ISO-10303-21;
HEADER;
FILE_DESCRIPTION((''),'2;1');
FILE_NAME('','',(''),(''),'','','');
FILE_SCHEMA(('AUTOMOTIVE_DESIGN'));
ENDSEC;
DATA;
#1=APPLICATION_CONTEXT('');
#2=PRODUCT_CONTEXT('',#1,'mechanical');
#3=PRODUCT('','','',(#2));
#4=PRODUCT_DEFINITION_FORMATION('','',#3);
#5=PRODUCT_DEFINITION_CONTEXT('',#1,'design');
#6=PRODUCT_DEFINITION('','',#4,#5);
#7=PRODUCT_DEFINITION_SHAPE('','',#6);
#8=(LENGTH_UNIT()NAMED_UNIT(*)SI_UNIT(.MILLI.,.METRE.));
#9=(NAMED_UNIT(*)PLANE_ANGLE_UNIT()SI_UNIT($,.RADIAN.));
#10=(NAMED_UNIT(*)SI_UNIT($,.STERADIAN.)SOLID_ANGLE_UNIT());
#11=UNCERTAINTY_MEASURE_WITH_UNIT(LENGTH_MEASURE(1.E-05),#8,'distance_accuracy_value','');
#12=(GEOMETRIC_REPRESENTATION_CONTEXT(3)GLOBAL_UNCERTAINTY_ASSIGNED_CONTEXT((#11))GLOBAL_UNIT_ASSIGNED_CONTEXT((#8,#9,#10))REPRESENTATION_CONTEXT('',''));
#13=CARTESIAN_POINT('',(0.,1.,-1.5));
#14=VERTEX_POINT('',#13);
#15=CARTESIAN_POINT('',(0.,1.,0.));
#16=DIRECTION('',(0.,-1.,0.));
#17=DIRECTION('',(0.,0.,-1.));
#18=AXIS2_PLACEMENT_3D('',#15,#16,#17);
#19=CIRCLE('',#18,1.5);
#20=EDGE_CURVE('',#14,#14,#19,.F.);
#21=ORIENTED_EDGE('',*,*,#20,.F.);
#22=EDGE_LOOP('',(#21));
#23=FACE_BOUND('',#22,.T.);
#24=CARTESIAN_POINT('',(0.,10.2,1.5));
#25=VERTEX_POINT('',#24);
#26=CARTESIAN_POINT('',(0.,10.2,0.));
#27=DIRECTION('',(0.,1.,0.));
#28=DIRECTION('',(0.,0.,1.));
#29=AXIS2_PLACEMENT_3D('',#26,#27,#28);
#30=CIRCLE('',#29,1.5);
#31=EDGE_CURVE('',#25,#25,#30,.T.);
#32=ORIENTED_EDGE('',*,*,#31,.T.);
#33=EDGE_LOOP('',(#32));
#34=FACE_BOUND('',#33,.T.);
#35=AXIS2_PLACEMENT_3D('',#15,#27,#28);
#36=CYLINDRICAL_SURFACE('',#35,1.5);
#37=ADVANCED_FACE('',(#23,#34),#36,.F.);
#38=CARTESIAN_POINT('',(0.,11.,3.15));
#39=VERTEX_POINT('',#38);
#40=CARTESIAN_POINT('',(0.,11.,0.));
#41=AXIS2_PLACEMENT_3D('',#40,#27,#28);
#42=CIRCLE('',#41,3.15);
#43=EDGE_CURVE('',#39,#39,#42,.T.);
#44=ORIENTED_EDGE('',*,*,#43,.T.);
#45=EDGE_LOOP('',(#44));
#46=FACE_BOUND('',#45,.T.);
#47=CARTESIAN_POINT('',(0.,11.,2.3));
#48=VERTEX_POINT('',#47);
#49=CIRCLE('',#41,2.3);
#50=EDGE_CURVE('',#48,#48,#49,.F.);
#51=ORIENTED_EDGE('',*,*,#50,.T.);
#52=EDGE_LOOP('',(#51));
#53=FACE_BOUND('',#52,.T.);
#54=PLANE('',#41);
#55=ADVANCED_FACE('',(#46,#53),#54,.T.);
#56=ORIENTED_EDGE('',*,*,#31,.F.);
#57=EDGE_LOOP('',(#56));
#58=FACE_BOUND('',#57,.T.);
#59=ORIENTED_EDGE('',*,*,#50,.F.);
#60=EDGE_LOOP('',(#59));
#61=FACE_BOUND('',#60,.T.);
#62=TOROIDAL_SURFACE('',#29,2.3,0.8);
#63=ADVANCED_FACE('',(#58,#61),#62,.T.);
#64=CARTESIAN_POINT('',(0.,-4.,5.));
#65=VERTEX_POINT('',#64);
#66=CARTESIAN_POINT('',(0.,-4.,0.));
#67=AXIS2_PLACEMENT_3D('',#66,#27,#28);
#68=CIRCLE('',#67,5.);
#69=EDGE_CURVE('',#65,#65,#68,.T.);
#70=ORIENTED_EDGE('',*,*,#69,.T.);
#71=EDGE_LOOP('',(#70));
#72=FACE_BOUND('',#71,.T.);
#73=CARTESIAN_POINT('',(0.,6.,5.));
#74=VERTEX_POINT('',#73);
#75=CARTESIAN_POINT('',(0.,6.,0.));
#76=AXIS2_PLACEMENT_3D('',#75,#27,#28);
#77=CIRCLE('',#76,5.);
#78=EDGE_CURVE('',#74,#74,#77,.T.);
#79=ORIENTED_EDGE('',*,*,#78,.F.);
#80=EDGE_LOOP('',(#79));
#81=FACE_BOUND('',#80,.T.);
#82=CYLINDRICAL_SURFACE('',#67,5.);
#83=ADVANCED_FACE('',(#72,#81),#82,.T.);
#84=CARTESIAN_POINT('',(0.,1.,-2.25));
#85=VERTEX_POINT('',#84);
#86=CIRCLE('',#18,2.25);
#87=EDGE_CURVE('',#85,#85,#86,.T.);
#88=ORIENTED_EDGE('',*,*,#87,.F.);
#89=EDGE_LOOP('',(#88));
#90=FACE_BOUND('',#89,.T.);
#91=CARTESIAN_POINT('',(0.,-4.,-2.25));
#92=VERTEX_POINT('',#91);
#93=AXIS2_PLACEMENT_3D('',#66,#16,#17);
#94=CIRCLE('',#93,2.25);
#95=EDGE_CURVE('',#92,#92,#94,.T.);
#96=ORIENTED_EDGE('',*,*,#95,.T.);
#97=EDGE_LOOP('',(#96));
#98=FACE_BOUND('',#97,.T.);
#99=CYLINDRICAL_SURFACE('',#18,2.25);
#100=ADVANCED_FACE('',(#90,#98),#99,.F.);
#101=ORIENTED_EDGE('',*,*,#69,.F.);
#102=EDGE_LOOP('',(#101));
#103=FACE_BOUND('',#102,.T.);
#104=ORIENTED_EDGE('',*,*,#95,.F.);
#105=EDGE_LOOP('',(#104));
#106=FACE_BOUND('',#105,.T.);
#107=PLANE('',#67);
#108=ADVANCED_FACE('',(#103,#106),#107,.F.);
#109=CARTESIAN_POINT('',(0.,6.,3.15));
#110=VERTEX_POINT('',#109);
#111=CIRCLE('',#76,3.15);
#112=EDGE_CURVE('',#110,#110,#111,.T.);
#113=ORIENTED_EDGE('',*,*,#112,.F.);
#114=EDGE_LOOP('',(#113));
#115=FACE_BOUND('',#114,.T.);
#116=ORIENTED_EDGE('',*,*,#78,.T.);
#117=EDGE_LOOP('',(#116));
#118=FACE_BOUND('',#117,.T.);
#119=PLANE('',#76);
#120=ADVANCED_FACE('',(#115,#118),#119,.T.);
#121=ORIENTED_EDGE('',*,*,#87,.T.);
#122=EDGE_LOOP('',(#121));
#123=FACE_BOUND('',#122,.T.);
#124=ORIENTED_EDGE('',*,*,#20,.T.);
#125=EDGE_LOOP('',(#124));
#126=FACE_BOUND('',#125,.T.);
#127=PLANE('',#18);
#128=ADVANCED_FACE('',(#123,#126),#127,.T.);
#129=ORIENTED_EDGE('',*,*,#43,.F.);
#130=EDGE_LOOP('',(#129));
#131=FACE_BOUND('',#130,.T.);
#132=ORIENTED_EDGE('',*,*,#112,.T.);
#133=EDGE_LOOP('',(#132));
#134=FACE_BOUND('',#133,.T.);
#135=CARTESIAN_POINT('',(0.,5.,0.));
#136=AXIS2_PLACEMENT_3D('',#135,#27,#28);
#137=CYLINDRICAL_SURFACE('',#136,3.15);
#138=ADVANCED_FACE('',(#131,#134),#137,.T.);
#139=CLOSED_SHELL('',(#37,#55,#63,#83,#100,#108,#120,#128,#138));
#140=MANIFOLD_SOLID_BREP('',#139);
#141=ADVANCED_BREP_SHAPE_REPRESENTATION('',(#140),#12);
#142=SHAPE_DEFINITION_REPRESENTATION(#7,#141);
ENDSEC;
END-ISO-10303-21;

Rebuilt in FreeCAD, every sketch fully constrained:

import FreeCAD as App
import Part
import Sketcher
Q = App.Units.Quantity


def edges_at(feature, points):
    """Names of the edges that pass closest to the given points."""
    edges = feature.Shape.Edges
    near = lambda p: min(range(len(edges)), key=lambda i: edges[i].distToShape(Part.Vertex(*p))[0])
    return sorted({f"Edge{near(p) + 1}" for p in points})

doc = App.newDocument("Part")
body = doc.addObject("PartDesign::Body", "Body")

sketch1 = body.newObject("Sketcher::SketchObject", "Sketch")
sketch1.AttachmentSupport = (doc.getObject("XZ_Plane"), [""])
sketch1.MapMode = "FlatFace"
sketch1.addGeometry(Part.Circle(App.Vector(0, 0, 0), App.Vector(0, 0, 1), 5), False)
sketch1.addConstraint([
    Sketcher.Constraint("Coincident", 0, 3, -1, 1),
    Sketcher.Constraint("Diameter", 0, Q("10 mm")),
])
pad1 = body.newObject("PartDesign::Pad", "Pad")
pad1.Profile = sketch1
pad1.Type = "TwoLengths"
pad1.Length = 6
pad1.Length2 = 4
pad1.Reversed = True

sketch2 = body.newObject("Sketcher::SketchObject", "Sketch001")
sketch2.AttachmentSupport = (doc.getObject("XZ_Plane"), [""])
sketch2.MapMode = "FlatFace"
sketch2.AttachmentOffset = App.Placement(App.Vector(0, 0, -6), App.Rotation())
sketch2.addGeometry(Part.Circle(App.Vector(0, 0, 0), App.Vector(0, 0, 1), 3.1), False)
sketch2.addConstraint([
    Sketcher.Constraint("Coincident", 0, 3, -1, 1),
    Sketcher.Constraint("Diameter", 0, Q("6.3 mm")),
])
pad2 = body.newObject("PartDesign::Pad", "Pad001")
pad2.Profile = sketch2
pad2.Type = "TwoLengths"
pad2.Length = 5
pad2.Length2 = 1
pad2.Reversed = True

sketch3 = body.newObject("Sketcher::SketchObject", "Sketch002")
sketch3.AttachmentSupport = (doc.getObject("XZ_Plane"), [""])
sketch3.MapMode = "FlatFace"
sketch3.AttachmentOffset = App.Placement(App.Vector(0, 0, -11), App.Rotation())
sketch3.addGeometry(Part.Circle(App.Vector(0, 0, 0), App.Vector(0, 0, 1), 1.5), False)
sketch3.addConstraint([
    Sketcher.Constraint("Coincident", 0, 3, -1, 1),
    Sketcher.Constraint("Diameter", 0, Q("3 mm")),
])
pocket1 = body.newObject("PartDesign::Pocket", "Pocket")
pocket1.Profile = sketch3
pocket1.Length = 10
pocket1.Reversed = True

sketch4 = body.newObject("Sketcher::SketchObject", "Sketch003")
sketch4.AttachmentSupport = (doc.getObject("XZ_Plane"), [""])
sketch4.MapMode = "FlatFace"
sketch4.AttachmentOffset = App.Placement(App.Vector(0, 0, 4), App.Rotation())
sketch4.addGeometry(Part.Circle(App.Vector(0, 0, 0), App.Vector(0, 0, 1), 2.2), False)
sketch4.addConstraint([
    Sketcher.Constraint("Coincident", 0, 3, -1, 1),
    Sketcher.Constraint("Diameter", 0, Q("4.5 mm")),
])
pocket2 = body.newObject("PartDesign::Pocket", "Pocket001")
pocket2.Profile = sketch4
pocket2.Length = 5
doc.recompute()

fillet = body.newObject("PartDesign::Fillet", "Fillet")
fillet.Base = (pocket2, edges_at(pocket2, [(0, 11, -1.5)]))
fillet.Radius = 0.8

doc.recompute()
